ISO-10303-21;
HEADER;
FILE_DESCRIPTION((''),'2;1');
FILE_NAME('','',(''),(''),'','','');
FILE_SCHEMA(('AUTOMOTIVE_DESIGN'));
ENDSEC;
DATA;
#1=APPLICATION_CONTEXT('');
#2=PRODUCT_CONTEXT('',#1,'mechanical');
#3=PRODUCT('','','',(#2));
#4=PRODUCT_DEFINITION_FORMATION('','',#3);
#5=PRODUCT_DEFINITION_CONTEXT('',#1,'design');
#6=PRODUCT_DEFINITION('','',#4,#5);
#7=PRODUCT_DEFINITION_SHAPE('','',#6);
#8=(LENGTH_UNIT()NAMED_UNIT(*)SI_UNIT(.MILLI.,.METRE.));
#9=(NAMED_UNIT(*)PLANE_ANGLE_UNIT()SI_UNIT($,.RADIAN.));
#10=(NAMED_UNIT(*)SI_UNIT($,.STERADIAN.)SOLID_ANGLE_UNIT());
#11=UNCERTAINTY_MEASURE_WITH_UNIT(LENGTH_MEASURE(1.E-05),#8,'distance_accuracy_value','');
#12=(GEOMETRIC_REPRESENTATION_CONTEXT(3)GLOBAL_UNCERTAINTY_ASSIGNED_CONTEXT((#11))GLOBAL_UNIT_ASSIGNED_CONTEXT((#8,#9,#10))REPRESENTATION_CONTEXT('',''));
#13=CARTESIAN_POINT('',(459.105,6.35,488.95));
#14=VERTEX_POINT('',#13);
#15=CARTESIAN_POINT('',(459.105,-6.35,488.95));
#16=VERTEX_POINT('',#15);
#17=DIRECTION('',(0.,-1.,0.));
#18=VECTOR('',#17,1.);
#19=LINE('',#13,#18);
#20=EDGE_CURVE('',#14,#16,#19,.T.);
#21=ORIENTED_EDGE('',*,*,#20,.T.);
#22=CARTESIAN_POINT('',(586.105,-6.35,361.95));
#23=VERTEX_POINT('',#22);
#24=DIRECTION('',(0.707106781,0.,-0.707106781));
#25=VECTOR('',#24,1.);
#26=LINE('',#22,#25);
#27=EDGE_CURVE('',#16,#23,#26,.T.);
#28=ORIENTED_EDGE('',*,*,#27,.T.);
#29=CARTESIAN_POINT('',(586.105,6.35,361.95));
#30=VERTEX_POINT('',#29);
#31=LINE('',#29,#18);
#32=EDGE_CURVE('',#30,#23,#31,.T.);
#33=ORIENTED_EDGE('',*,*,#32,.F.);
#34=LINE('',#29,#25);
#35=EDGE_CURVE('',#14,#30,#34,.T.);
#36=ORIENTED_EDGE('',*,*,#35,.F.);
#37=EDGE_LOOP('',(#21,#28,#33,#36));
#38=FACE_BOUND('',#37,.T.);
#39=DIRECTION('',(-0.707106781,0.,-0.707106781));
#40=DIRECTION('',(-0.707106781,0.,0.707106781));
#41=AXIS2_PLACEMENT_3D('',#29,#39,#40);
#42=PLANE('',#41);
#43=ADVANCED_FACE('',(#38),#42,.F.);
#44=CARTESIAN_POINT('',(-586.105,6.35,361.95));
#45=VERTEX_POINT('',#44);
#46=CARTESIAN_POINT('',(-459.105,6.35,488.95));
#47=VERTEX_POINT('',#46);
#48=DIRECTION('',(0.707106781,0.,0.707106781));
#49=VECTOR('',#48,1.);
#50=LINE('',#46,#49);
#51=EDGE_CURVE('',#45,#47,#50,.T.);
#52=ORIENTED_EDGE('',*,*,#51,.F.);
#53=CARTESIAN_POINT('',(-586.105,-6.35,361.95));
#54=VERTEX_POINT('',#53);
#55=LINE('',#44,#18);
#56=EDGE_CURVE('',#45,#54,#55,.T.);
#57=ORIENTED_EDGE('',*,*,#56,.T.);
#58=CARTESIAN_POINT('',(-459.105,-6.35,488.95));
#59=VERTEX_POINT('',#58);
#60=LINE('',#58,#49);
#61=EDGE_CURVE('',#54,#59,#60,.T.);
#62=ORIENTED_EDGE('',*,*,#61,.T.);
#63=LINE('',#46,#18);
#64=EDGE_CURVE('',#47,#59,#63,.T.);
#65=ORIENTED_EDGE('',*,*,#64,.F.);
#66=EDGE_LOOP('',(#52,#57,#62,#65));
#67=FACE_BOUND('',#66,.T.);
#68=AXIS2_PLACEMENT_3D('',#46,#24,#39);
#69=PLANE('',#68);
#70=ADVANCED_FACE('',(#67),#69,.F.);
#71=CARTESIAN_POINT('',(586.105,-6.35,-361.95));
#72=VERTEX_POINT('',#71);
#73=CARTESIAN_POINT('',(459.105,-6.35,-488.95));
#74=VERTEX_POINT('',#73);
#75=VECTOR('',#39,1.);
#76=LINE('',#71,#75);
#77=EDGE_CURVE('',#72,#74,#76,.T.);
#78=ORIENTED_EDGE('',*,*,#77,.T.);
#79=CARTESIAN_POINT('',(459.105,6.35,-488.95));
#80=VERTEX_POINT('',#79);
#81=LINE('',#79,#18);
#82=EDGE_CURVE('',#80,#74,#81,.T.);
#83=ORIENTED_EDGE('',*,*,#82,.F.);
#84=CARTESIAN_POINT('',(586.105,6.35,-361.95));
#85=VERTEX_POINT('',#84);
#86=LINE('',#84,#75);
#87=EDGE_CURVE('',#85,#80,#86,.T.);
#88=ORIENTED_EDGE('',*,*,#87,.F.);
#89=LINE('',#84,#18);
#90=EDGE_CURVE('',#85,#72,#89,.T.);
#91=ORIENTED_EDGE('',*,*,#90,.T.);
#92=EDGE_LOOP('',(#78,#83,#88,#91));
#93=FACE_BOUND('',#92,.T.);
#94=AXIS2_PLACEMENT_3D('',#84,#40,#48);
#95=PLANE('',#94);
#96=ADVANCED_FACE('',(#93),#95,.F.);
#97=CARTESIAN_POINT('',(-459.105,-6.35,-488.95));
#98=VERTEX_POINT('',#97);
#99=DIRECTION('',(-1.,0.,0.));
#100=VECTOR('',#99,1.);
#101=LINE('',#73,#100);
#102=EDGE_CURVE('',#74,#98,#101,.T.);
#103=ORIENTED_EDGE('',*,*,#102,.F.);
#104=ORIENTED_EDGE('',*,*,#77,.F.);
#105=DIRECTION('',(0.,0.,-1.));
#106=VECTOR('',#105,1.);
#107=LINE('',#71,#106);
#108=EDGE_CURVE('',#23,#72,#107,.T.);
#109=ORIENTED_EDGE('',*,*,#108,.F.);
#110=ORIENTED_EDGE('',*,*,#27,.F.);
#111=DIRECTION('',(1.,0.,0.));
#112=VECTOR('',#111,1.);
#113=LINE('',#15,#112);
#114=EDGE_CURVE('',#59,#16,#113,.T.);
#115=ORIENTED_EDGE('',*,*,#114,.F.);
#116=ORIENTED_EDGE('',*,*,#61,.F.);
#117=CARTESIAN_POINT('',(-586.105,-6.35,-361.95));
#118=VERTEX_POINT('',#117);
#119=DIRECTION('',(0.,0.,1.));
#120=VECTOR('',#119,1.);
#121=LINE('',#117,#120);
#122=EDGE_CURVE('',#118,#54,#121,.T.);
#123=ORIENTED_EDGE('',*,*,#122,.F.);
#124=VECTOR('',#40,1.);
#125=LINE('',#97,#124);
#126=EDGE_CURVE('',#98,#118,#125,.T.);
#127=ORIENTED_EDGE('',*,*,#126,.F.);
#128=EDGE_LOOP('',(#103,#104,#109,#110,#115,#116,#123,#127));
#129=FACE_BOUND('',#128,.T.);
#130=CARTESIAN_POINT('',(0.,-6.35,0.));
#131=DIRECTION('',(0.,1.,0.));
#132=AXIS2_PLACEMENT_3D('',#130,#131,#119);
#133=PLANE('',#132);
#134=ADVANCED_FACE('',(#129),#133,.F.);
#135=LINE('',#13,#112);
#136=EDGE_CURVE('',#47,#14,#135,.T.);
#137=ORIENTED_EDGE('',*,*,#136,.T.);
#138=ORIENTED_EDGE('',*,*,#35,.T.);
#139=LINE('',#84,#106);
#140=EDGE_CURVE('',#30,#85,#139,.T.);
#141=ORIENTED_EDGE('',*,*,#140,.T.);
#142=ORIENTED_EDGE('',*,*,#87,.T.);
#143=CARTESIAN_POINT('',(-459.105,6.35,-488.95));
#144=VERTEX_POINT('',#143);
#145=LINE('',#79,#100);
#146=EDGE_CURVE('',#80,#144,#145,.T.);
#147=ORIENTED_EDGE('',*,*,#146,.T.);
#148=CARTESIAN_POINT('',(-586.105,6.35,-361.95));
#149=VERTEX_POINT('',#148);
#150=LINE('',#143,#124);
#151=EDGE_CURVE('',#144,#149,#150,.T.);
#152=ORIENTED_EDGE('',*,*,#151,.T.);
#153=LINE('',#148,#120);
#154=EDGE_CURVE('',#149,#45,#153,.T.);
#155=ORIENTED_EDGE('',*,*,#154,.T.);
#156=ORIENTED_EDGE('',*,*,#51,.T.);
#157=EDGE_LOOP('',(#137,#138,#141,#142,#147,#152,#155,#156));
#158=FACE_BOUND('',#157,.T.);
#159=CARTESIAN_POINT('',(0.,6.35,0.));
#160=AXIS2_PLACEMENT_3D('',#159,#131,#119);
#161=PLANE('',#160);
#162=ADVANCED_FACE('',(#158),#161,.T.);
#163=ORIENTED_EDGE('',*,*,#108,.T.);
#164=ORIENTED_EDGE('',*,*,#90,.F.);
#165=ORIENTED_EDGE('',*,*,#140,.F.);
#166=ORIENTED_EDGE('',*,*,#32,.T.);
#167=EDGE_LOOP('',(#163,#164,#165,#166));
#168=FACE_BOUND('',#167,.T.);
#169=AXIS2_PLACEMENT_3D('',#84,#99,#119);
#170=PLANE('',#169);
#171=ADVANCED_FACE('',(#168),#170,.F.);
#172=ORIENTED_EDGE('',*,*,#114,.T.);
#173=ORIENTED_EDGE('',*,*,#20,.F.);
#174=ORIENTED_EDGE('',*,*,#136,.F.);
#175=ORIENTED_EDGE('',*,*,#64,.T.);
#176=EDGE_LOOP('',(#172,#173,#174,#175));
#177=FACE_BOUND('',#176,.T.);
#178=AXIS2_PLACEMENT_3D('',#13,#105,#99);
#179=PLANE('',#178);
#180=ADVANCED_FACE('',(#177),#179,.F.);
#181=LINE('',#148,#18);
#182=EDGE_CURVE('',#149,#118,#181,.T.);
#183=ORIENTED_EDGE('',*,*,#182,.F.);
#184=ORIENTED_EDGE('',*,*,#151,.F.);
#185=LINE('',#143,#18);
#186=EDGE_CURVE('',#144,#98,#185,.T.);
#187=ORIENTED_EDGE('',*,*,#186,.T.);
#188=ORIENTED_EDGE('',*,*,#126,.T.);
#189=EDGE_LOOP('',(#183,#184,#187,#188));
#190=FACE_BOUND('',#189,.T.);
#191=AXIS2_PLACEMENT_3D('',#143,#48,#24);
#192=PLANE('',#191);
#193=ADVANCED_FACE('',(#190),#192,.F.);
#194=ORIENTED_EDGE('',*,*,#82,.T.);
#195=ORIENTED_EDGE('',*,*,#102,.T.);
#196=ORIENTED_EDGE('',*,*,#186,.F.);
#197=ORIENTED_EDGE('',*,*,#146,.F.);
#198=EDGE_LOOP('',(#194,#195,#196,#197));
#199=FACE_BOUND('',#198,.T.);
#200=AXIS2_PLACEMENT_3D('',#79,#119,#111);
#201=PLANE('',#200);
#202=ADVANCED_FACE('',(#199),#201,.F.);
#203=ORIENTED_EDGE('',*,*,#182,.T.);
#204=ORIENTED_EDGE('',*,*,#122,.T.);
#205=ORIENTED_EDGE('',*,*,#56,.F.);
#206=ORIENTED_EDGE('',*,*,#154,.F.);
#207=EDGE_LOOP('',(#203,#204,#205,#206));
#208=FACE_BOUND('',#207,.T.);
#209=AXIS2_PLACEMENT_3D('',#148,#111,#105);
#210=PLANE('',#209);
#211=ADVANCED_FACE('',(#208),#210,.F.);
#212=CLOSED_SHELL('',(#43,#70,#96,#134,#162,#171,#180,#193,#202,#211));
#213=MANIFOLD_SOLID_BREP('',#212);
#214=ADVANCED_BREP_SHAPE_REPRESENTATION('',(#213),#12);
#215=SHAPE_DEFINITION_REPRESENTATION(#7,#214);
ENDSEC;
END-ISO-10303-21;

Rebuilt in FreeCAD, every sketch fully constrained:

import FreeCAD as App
import Part
import Sketcher
Q = App.Units.Quantity

doc = App.newDocument("Part")
body = doc.addObject("PartDesign::Body", "Body")

# Sketch on XZ plane
sketch1 = body.newObject("Sketcher::SketchObject", "Sketch")
sketch1.AttachmentSupport = (doc.getObject("XZ_Plane"), [""])
sketch1.MapMode = "FlatFace"
sketch1.addGeometry(Part.LineSegment(App.Vector(-459, -489, 0), App.Vector(-586, -362, 0)), False)
sketch1.addGeometry(Part.LineSegment(App.Vector(-586, -362, 0), App.Vector(-586, 362, 0)), False)
sketch1.addGeometry(Part.LineSegment(App.Vector(-586, 362, 0), App.Vector(-459, 489, 0)), False)
sketch1.addGeometry(Part.LineSegment(App.Vector(-459, 489, 0), App.Vector(459, 489, 0)), False)
sketch1.addGeometry(Part.LineSegment(App.Vector(459, 489, 0), App.Vector(586, 362, 0)), False)
sketch1.addGeometry(Part.LineSegment(App.Vector(586, 362, 0), App.Vector(586, -362, 0)), False)
sketch1.addGeometry(Part.LineSegment(App.Vector(586, -362, 0), App.Vector(459, -489, 0)), False)
sketch1.addGeometry(Part.LineSegment(App.Vector(459, -489, 0), App.Vector(-459, -489, 0)), False)
sketch1.addConstraint(Sketcher.Constraint("Coincident", 0, 2, 1, 1))
sketch1.addConstraint(Sketcher.Constraint("Coincident", 1, 2, 2, 1))
sketch1.addConstraint(Sketcher.Constraint("Coincident", 2, 2, 3, 1))
sketch1.addConstraint(Sketcher.Constraint("Coincident", 3, 2, 4, 1))
sketch1.addConstraint(Sketcher.Constraint("Coincident", 4, 2, 5, 1))
sketch1.addConstraint(Sketcher.Constraint("Coincident", 5, 2, 6, 1))
sketch1.addConstraint(Sketcher.Constraint("Coincident", 6, 2, 7, 1))
sketch1.addConstraint(Sketcher.Constraint("Coincident", 7, 2, 0, 1))
sketch1.addConstraint(Sketcher.Constraint("Vertical", 1))
sketch1.addConstraint(Sketcher.Constraint("Horizontal", 3))
sketch1.addConstraint(Sketcher.Constraint("Vertical", 5))
sketch1.addConstraint(Sketcher.Constraint("Horizontal", 7))
sketch1.addConstraint(Sketcher.Constraint("Symmetric", 0, 2, 4, 2, -1, 1))
sketch1.addConstraint(Sketcher.Constraint("Symmetric", 2, 2, 6, 2, -1, 1))
sketch1.addConstraint(Sketcher.Constraint("Perpendicular", 0, 2))
sketch1.addConstraint(Sketcher.Constraint("Perpendicular", 2, 4))
sketch1.addConstraint(Sketcher.Constraint("Perpendicular", 4, 6))
sketch1.addConstraint(Sketcher.Constraint("Horizontal", 1, 2, 4, 2))
sketch1.addConstraint(Sketcher.Constraint("Vertical", 3, 2, 6, 2))
sketch1.addConstraint(Sketcher.Constraint("DistanceY", 1, 1, 1, 2, Q("28.5 in")))
sketch1.addConstraint(Sketcher.Constraint("DistanceX", 1, 2, 2, 2, Q("5 in")))
sketch1.addConstraint(Sketcher.Constraint("DistanceX", 3, 1, 3, 2, Q("36.15 in")))
pad1 = body.newObject("PartDesign::Pad", "Pad")
pad1.Profile = sketch1
pad1.Length = Q("0.5 in")
pad1.Midplane = True

doc.recompute()
